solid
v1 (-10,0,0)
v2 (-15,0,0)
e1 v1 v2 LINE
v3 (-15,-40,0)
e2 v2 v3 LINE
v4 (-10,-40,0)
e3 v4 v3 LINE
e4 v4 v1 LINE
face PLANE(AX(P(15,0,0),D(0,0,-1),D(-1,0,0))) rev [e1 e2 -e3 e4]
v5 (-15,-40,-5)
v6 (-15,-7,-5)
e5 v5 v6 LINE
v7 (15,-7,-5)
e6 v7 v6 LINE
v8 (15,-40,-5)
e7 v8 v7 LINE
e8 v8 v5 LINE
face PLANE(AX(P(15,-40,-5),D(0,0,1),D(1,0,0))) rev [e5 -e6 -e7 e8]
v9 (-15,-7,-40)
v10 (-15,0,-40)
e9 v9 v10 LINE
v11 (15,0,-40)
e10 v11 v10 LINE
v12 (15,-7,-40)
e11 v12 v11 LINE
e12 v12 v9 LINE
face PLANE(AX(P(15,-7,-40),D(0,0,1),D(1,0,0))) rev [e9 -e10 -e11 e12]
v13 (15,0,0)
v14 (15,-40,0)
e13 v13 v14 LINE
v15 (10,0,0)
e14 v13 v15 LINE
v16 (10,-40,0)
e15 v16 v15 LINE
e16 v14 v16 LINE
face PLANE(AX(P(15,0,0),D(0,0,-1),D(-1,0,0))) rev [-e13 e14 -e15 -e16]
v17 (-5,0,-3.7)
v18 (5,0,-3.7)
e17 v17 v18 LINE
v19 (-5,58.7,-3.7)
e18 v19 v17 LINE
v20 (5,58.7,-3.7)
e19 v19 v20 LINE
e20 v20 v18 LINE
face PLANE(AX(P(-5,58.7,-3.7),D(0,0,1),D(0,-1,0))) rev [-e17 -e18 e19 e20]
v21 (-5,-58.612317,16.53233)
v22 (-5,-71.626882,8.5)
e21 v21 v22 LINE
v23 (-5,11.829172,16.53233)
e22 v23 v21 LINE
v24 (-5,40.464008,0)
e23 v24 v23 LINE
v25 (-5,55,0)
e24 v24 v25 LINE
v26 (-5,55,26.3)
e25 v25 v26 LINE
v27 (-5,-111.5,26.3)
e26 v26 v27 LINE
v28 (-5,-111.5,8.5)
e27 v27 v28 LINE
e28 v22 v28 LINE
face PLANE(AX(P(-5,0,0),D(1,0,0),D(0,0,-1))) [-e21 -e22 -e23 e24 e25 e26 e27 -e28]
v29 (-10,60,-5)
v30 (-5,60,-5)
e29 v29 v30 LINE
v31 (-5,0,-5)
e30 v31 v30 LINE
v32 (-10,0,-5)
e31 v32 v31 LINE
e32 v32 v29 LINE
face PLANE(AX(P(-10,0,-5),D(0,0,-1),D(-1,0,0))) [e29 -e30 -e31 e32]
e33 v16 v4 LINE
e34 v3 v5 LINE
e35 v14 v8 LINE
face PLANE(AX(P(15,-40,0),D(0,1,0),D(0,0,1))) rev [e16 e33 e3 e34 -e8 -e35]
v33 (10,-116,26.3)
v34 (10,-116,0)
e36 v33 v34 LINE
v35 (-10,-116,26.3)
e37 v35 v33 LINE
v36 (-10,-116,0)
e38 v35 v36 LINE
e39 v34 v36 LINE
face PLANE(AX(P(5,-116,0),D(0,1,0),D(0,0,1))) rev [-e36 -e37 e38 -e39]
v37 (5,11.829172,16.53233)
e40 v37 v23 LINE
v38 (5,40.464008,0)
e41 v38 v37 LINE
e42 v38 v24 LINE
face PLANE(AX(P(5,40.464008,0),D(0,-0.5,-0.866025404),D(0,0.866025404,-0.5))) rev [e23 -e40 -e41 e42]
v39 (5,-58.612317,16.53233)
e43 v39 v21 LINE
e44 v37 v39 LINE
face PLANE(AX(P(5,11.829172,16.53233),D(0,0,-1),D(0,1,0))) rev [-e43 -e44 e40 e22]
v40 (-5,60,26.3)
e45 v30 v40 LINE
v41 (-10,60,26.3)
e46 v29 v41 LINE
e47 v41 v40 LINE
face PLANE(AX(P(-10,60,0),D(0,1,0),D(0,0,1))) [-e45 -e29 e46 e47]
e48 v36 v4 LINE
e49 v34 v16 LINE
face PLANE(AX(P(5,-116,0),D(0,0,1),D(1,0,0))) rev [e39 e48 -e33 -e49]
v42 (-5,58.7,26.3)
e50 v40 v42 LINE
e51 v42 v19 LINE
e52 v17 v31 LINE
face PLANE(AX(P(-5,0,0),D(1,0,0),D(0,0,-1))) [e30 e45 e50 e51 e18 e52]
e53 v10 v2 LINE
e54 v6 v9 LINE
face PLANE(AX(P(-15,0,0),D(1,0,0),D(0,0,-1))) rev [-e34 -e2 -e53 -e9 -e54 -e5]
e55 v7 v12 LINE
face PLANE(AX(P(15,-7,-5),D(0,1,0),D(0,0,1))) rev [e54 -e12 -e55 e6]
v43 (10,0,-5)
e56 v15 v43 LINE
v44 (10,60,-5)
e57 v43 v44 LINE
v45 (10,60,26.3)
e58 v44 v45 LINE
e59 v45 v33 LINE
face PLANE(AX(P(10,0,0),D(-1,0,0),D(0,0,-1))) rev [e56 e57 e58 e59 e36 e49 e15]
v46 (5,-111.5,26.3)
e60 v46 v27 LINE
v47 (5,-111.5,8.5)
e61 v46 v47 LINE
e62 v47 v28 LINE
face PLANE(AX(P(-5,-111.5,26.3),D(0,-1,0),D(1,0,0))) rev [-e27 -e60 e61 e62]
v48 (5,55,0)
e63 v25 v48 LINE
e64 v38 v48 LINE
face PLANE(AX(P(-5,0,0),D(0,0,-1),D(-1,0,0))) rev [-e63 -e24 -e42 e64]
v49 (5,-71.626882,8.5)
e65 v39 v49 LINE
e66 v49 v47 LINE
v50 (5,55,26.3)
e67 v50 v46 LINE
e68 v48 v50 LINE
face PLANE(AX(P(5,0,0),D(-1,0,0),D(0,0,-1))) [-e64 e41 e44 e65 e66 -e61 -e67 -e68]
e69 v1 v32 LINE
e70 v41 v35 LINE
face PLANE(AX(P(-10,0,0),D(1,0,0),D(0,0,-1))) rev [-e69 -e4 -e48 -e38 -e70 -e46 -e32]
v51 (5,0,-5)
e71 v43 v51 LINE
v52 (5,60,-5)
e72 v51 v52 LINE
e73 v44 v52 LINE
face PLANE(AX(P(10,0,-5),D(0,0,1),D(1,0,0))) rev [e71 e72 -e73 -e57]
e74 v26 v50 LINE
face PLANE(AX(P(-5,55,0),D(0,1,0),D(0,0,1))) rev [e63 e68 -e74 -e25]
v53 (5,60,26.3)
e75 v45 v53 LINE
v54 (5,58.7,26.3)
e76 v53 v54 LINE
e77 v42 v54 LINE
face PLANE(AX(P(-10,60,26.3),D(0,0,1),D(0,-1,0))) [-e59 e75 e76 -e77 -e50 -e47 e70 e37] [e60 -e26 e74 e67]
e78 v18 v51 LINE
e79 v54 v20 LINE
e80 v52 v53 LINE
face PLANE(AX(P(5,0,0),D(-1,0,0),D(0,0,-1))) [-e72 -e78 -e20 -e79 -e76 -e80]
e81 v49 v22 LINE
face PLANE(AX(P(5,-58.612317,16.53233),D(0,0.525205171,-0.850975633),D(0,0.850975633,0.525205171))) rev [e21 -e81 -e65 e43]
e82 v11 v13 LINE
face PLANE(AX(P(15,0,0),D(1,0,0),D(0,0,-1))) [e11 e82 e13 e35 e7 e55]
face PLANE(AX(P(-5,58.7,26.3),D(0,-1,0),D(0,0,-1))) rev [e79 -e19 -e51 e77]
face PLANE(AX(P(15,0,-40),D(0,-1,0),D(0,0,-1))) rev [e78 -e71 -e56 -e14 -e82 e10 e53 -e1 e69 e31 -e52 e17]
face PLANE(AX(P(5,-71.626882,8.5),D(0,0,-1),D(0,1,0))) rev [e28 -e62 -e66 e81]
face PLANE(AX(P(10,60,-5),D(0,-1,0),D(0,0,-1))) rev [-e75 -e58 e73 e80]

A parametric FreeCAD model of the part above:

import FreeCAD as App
import Part
import Sketcher
from FreeCAD import Vector
Q = App.Units.Quantity

doc = App.newDocument("Part")
body = doc.addObject("PartDesign::Body", "Body")

# Sketch on YZ plane
sketch1 = body.newObject("Sketcher::SketchObject", "Sketch")
sketch1.AttachmentSupport = (doc.getObject("YZ_Plane"), [""])
sketch1.MapMode = "FlatFace"
sketch1.addGeometry([
    Part.LineSegment(Vector(0, 0, 0), Vector(-40, 0, 0)),  # 0
    Part.LineSegment(Vector(-40, 0, 0), Vector(-40, -5, 0)),  # 1
    Part.LineSegment(Vector(-40, -5, 0), Vector(-7, -5, 0)),  # 2
    Part.LineSegment(Vector(-7, -5, 0), Vector(-7, -40, 0)),  # 3
    Part.LineSegment(Vector(-7, -40, 0), Vector(0, -40, 0)),  # 4
    Part.LineSegment(Vector(0, -40, 0), Vector(0, 0, 0)),  # 5
], False)
sketch1.addConstraint([
    Sketcher.Constraint("Coincident", 0, 2, 1, 1),
    Sketcher.Constraint("Coincident", 1, 2, 2, 1),
    Sketcher.Constraint("Coincident", 2, 2, 3, 1),
    Sketcher.Constraint("Coincident", 3, 2, 4, 1),
    Sketcher.Constraint("Coincident", 4, 2, 5, 1),
    Sketcher.Constraint("Coincident", 5, 2, 0, 1),
    Sketcher.Constraint("Horizontal", 0),
    Sketcher.Constraint("Vertical", 1),
    Sketcher.Constraint("Horizontal", 2),
    Sketcher.Constraint("Vertical", 3),
    Sketcher.Constraint("Horizontal", 4),
    Sketcher.Constraint("Vertical", 5),
    Sketcher.Constraint("Coincident", 5, 2, -1, 1),
    Sketcher.Constraint("Equal", 0, 5),
    Sketcher.Constraint("DistanceX", 0, 2, 0, 1, Q("40 mm")),
    Sketcher.Constraint("DistanceX", 2, 1, 2, 2, Q("33 mm")),
    Sketcher.Constraint("DistanceY", 1, 2, 1, 1, Q("5 mm")),
])
pad1 = body.newObject("PartDesign::Pad", "Pad")
pad1.Profile = sketch1
pad1.Length = 30
pad1.Midplane = True

# Sketch on YZ plane
sketch2 = body.newObject("Sketcher::SketchObject", "Sketch001")
sketch2.AttachmentSupport = (doc.getObject("YZ_Plane"), [""])
sketch2.MapMode = "FlatFace"
sketch2.addGeometry([
    Part.LineSegment(Vector(-116, 8, 0), Vector(-116, 0, 0)),  # 0
    Part.LineSegment(Vector(-116, 0, 0), Vector(40, 0, 0)),  # 1
    Part.LineSegment(Vector(40, 0, 0), Vector(12, 17, 0)),  # 2
    Part.LineSegment(Vector(12, 17, 0), Vector(-59, 17, 0)),  # 3
    Part.LineSegment(Vector(-59, 17, 0), Vector(-72, 8, 0)),  # 4
    Part.LineSegment(Vector(-72, 8, 0), Vector(-116, 8, 0)),  # 5
], False)
sketch2.addConstraint([
    Sketcher.Constraint("Coincident", 0, 2, 1, 1),
    Sketcher.Constraint("Coincident", 1, 2, 2, 1),
    Sketcher.Constraint("Coincident", 2, 2, 3, 1),
    Sketcher.Constraint("Coincident", 3, 2, 4, 1),
    Sketcher.Constraint("Coincident", 4, 2, 5, 1),
    Sketcher.Constraint("Coincident", 5, 2, 0, 1),
    Sketcher.Constraint("Vertical", 0),
    Sketcher.Constraint("Horizontal", 1),
    Sketcher.Constraint("Horizontal", 3),
    Sketcher.Constraint("Horizontal", 5),
    Sketcher.Constraint("PointOnObject", 0, 2, -1),
    Sketcher.Constraint("Angle", 2, Q("150 deg")),
    Sketcher.Constraint("DistanceY", 0, 2, 0, 1, Q("8.5 mm")),
    Sketcher.Constraint("DistanceX", 0, 2, -1, 1, Q("116 mm")),
    Sketcher.Constraint("Distance", 4, Q("15.2937 mm")),
    Sketcher.Constraint("DistanceX", 3, 2, 3, 1, Q("70.441489 mm")),
    Sketcher.Constraint("Distance", 2, Q("33.06466 mm")),
    Sketcher.Constraint("DistanceX", 1, 1, 1, 2, Q("156.464008 mm")),
])
pad2 = body.newObject("PartDesign::Pad", "Pad001")
pad2.Profile = sketch2
pad2.Length = 10
pad2.Midplane = True

# Sketch on YZ plane
sketch3 = body.newObject("Sketcher::SketchObject", "Sketch002")
sketch3.AttachmentSupport = (doc.getObject("YZ_Plane"), [""])
sketch3.MapMode = "FlatFace"
sketch3.AttachmentOffset = App.Placement(Vector(0, 0, -5), App.Rotation())
sketch3.addGeometry([
    Part.LineSegment(Vector(60, 26, 0), Vector(60, -5, 0)),  # 0
    Part.LineSegment(Vector(60, -5, 0), Vector(0, -5, 0)),  # 1
    Part.LineSegment(Vector(0, -5, 0), Vector(0, 0, 0)),  # 2
    Part.LineSegment(Vector(0, 0, 0), Vector(-116, 0, 0)),  # 3
    Part.LineSegment(Vector(-116, 0, 0), Vector(-116, 26, 0)),  # 4
    Part.LineSegment(Vector(-116, 26, 0), Vector(60, 26, 0)),  # 5
], False)
sketch3.addConstraint([
    Sketcher.Constraint("Coincident", 0, 2, 1, 1),
    Sketcher.Constraint("Coincident", 1, 2, 2, 1),
    Sketcher.Constraint("Coincident", 2, 2, 3, 1),
    Sketcher.Constraint("Coincident", 3, 2, 4, 1),
    Sketcher.Constraint("Coincident", 4, 2, 5, 1),
    Sketcher.Constraint("Coincident", 5, 2, 0, 1),
    Sketcher.Constraint("Vertical", 0),
    Sketcher.Constraint("Horizontal", 1),
    Sketcher.Constraint("Vertical", 2),
    Sketcher.Constraint("Horizontal", 3),
    Sketcher.Constraint("Vertical", 4),
    Sketcher.Constraint("Horizontal", 5),
    Sketcher.Constraint("Coincident", 2, 2, -1, 1),
    Sketcher.Constraint("DistanceX", 1, 2, 1, 1, Q("60 mm")),
    Sketcher.Constraint("DistanceX", 3, 2, 3, 1, Q("116 mm")),
    Sketcher.Constraint("DistanceY", 2, 1, 2, 2, Q("5 mm")),
    Sketcher.Constraint("DistanceY", 0, 2, 0, 1, Q("31.3 mm")),
])
pad3 = body.newObject("PartDesign::Pad", "Pad002")
pad3.Profile = sketch3
pad3.Length = 5
pad3.Reversed = True
doc.recompute()

mirrored = body.newObject("PartDesign::Mirrored", "Mirrored")
mirrored.Originals = [pad3]
mirrored.MirrorPlane = (doc.getObject("YZ_Plane"), [""])
body.Tip = mirrored

# Sketch on YZ plane
sketch4 = body.newObject("Sketcher::SketchObject", "Sketch003")
sketch4.AttachmentSupport = (doc.getObject("YZ_Plane"), [""])
sketch4.MapMode = "FlatFace"
sketch4.AttachmentOffset = App.Placement(Vector(0, 0, 5), App.Rotation())
sketch4.addGeometry([
    Part.LineSegment(Vector(0, 0, 0), Vector(55, 0, 0)),  # 0
    Part.LineSegment(Vector(55, 0, 0), Vector(55, 26.3, 0)),  # 1
    Part.LineSegment(Vector(55, 26.3, 0), Vector(58.7, 26.3, 0)),  # 2
    Part.LineSegment(Vector(58.7, 26.3, 0), Vector(58.7, -3.7, 0)),  # 3
    Part.LineSegment(Vector(58.7, -3.7, 0), Vector(0, -3.7, 0)),  # 4
    Part.LineSegment(Vector(0, -3.7, 0), Vector(0, 0, 0)),  # 5
], False)
sketch4.addConstraint([
    Sketcher.Constraint("Coincident", 0, 2, 1, 1),
    Sketcher.Constraint("Coincident", 1, 2, 2, 1),
    Sketcher.Constraint("Coincident", 2, 2, 3, 1),
    Sketcher.Constraint("Coincident", 3, 2, 4, 1),
    Sketcher.Constraint("Coincident", 4, 2, 5, 1),
    Sketcher.Constraint("Coincident", 5, 2, 0, 1),
    Sketcher.Constraint("Horizontal", 0),
    Sketcher.Constraint("Vertical", 1),
    Sketcher.Constraint("Horizontal", 2),
    Sketcher.Constraint("Vertical", 3),
    Sketcher.Constraint("Horizontal", 4),
    Sketcher.Constraint("Vertical", 5),
    Sketcher.Constraint("Coincident", 5, 2, -1, 1),
    Sketcher.Constraint("Equal", 2, 5),
    Sketcher.Constraint("DistanceX", 0, 1, 0, 2, Q("55 mm")),
    Sketcher.Constraint("DistanceY", 3, 2, 3, 1, Q("30 mm")),
    Sketcher.Constraint("DistanceX", 2, 1, 2, 2, Q("3.7 mm")),
])
pad4 = body.newObject("PartDesign::Pad", "Pad003")
pad4.Profile = sketch4
pad4.Length = 10
pad4.Reversed = True

# Sketch on XY plane
sketch5 = body.newObject("Sketcher::SketchObject", "Sketch004")
sketch5.AttachmentSupport = (doc.getObject("XY_Plane"), [""])
sketch5.MapMode = "FlatFace"
sketch5.AttachmentOffset = App.Placement(Vector(0, 0, 8.5), App.Rotation())
sketch5.addGeometry([
    Part.LineSegment(Vector(-5, -111.5, 0), Vector(-5, -116, 0)),
    Part.LineSegment(Vector(-5, -116, 0), Vector(5, -116, 0)),
    Part.LineSegment(Vector(5, -116, 0), Vector(5, -111.5, 0)),
    Part.LineSegment(Vector(5, -111.5, 0), Vector(-5, -111.5, 0)),
], False)
sketch5.addConstraint([
    Sketcher.Constraint("Coincident", 0, 2, 1, 1),
    Sketcher.Constraint("Coincident", 1, 2, 2, 1),
    Sketcher.Constraint("Coincident", 2, 2, 3, 1),
    Sketcher.Constraint("Coincident", 3, 2, 0, 1),
    Sketcher.Constraint("Vertical", 0),
    Sketcher.Constraint("Horizontal", 1),
    Sketcher.Constraint("Vertical", 2),
    Sketcher.Constraint("Horizontal", 3),
    Sketcher.Constraint("DistanceX", 1, 1, 1, 2, Q("10 mm")),
    Sketcher.Constraint("DistanceY", 0, 2, 0, 1, Q("4.5 mm")),
    Sketcher.Constraint("DistanceX", 0, 2, -1, 1, Q("5 mm")),
    Sketcher.Constraint("DistanceY", 0, 2, -1, 1, Q("116 mm")),
])
pad5 = body.newObject("PartDesign::Pad", "Pad004")
pad5.Profile = sketch5
pad5.Length = 17.8

doc.recompute()
